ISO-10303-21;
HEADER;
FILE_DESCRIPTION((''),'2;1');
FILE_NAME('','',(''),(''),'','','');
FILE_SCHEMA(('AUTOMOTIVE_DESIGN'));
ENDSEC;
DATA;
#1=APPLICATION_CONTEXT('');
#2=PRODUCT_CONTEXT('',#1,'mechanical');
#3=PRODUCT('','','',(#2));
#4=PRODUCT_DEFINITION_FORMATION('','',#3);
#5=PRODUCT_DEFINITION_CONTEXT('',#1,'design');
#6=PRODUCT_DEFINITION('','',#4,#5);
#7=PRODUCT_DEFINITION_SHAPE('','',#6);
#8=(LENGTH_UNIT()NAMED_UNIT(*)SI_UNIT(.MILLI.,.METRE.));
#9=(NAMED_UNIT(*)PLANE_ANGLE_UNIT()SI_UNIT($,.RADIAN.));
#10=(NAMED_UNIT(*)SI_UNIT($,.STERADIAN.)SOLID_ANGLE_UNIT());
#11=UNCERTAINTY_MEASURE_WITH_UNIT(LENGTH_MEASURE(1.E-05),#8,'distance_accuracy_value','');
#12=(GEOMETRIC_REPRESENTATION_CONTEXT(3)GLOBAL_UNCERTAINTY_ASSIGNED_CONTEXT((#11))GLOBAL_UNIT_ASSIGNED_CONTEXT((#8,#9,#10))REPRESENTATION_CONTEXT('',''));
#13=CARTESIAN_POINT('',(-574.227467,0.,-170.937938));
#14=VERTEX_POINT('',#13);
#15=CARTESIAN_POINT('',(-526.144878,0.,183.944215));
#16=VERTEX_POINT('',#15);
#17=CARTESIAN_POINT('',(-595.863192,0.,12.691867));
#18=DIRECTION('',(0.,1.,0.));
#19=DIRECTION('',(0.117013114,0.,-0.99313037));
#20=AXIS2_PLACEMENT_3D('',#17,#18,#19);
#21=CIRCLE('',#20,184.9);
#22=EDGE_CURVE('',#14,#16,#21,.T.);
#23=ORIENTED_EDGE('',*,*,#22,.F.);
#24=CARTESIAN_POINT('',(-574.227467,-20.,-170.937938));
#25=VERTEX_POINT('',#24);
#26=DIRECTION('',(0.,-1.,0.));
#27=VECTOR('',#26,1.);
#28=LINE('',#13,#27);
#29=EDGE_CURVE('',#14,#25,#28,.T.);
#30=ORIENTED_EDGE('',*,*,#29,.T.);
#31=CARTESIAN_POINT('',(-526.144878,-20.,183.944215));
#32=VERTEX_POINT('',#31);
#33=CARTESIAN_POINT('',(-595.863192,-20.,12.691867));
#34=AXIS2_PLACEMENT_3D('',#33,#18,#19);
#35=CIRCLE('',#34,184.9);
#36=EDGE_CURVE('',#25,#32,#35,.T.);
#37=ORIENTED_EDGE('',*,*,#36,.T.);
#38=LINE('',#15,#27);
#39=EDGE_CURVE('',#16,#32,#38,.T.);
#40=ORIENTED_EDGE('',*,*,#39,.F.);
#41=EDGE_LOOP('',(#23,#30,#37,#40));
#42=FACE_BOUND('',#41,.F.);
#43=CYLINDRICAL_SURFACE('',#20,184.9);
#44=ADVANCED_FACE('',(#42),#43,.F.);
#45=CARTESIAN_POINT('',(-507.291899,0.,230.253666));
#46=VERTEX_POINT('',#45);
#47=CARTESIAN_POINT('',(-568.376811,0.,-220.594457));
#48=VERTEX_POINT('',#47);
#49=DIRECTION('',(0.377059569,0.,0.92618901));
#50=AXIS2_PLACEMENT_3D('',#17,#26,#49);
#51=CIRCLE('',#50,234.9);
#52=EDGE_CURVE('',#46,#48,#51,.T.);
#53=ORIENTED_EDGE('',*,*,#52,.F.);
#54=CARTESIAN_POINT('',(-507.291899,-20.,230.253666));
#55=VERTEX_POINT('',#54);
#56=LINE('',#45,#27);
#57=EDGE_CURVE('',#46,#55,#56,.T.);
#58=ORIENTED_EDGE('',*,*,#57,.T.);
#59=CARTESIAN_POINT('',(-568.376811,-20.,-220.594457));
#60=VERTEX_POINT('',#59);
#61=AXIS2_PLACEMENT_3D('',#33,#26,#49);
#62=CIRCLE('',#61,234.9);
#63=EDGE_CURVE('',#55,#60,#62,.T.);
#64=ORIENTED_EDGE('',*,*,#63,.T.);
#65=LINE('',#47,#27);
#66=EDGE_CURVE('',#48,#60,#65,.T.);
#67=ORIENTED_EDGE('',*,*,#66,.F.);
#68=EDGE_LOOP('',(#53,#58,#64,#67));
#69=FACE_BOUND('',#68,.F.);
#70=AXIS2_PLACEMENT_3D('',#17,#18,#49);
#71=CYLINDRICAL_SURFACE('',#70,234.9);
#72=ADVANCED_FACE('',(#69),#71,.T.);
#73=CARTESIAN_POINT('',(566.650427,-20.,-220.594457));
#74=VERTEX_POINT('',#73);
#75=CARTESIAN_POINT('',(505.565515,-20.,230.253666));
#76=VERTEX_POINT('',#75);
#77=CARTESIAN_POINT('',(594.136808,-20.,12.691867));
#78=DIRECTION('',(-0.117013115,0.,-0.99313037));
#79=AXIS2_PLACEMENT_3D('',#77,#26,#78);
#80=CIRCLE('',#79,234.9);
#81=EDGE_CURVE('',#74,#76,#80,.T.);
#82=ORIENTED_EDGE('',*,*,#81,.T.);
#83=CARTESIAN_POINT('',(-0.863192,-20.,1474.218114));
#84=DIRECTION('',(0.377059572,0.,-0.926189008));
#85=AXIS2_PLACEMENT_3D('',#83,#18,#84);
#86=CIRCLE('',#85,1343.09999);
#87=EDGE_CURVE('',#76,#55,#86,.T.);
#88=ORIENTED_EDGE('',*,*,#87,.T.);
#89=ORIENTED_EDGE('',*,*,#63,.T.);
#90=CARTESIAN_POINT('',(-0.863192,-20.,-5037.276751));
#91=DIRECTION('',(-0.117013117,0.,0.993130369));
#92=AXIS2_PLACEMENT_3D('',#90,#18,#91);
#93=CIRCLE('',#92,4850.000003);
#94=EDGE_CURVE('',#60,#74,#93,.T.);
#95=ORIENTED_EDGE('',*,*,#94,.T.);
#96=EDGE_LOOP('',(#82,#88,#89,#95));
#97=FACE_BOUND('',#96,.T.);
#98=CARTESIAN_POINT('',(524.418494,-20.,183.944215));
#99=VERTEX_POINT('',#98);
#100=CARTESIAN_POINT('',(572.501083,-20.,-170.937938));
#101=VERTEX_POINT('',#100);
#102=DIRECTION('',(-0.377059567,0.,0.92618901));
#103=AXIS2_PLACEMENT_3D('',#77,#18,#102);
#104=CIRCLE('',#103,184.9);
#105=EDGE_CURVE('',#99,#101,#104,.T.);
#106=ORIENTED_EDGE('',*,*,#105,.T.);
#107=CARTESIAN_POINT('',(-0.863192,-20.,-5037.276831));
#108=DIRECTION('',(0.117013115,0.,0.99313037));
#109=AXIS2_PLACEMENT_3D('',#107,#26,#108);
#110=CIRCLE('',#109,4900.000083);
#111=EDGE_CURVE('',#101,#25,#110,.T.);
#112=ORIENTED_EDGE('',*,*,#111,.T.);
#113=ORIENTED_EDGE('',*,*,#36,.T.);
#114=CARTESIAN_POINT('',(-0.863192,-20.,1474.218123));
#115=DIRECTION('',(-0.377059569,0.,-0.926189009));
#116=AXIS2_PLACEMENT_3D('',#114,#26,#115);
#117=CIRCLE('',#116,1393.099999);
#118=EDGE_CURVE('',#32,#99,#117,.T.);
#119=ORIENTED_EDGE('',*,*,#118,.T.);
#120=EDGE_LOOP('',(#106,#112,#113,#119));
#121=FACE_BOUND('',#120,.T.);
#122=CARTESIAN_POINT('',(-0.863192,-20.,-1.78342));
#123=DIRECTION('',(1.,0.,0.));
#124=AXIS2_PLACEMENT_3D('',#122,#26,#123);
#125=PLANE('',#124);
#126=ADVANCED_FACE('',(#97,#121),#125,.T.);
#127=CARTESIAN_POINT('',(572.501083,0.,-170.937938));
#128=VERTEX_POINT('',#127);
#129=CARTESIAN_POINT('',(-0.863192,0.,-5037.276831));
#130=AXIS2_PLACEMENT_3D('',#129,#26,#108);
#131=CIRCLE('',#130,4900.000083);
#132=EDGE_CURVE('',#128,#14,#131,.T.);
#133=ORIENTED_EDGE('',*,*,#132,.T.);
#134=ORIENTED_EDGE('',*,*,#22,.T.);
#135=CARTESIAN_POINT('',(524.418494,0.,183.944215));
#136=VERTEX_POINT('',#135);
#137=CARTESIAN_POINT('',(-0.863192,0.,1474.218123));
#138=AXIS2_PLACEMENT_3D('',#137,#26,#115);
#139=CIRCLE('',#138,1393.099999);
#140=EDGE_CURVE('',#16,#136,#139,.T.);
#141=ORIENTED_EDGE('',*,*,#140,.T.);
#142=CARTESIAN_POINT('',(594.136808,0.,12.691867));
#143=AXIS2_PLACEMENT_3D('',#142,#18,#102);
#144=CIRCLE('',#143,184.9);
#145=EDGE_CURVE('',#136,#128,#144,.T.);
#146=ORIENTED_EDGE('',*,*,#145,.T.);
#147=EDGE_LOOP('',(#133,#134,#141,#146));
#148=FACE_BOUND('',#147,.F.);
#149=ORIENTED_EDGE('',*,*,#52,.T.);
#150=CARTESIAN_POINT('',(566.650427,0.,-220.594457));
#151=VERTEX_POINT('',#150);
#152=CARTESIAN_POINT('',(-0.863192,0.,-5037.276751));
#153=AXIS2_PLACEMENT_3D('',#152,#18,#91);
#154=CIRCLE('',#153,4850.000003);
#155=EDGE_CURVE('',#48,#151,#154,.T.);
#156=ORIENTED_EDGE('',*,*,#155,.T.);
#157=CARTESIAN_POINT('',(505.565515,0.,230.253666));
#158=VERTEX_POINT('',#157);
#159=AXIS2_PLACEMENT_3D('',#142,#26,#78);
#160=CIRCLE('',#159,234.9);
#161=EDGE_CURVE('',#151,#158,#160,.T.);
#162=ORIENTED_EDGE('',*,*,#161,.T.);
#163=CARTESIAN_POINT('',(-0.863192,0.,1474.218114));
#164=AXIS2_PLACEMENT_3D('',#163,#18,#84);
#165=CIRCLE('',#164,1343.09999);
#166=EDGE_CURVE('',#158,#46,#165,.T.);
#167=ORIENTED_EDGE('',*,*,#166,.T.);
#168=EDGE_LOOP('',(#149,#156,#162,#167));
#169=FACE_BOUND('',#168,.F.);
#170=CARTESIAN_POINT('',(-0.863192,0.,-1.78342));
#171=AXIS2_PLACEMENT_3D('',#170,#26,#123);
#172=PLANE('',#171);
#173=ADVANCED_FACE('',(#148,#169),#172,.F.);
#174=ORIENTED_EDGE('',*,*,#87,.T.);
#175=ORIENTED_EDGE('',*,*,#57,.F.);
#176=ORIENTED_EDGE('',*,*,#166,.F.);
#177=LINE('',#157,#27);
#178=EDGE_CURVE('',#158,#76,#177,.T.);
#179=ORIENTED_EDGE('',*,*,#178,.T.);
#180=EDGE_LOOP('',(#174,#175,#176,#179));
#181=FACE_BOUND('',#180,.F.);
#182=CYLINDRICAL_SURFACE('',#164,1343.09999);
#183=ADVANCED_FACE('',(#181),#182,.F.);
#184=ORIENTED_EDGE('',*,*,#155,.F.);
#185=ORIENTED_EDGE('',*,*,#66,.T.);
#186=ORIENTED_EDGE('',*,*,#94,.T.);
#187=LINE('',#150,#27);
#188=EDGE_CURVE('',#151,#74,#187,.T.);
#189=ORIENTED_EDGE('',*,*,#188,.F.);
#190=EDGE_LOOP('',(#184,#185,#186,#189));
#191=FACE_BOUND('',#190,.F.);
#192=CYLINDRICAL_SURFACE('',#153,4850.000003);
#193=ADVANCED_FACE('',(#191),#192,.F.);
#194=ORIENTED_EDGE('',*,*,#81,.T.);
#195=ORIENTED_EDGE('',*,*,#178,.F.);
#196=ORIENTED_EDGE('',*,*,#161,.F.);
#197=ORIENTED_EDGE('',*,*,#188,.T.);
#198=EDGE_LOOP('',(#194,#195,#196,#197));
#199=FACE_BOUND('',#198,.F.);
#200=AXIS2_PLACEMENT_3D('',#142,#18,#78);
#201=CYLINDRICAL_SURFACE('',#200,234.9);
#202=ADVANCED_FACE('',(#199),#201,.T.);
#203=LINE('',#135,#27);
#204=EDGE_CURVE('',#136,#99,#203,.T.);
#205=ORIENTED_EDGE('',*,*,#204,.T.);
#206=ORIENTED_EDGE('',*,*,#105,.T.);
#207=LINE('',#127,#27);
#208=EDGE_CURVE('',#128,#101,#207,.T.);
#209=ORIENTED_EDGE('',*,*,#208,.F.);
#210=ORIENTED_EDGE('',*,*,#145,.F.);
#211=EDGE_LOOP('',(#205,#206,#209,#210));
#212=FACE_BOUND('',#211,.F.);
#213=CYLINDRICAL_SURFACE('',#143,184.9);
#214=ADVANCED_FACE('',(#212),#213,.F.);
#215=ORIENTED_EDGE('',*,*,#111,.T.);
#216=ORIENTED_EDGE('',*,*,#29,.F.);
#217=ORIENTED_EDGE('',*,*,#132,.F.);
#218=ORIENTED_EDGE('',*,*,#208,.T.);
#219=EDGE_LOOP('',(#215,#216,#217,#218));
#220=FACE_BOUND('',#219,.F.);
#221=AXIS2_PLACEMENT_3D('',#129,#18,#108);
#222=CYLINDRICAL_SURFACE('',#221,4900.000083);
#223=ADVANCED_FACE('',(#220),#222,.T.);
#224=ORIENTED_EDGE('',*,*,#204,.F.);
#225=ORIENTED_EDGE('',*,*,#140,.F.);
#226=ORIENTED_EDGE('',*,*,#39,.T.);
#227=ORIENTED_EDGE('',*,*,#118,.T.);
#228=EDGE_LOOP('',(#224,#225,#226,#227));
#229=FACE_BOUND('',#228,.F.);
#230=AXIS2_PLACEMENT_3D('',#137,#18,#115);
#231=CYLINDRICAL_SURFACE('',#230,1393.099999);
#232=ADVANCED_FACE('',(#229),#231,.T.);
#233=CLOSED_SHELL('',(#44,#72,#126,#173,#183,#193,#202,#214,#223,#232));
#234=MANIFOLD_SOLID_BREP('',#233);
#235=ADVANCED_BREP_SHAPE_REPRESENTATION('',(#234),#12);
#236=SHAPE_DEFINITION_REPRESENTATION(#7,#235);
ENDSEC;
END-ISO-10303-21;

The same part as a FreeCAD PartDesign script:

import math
import FreeCAD as App
import Part
import Sketcher

doc = App.newDocument("Part")
body = doc.addObject("PartDesign::Body", "Body")

sketch1 = body.newObject("Sketcher::SketchObject", "Sketch")
sketch1.AttachmentSupport = (doc.getObject("XZ_Plane"), [""])
sketch1.MapMode = "FlatFace"
sketch1.addGeometry([
    Part.ArcOfCircle(Part.Circle(App.Vector(-1, 1474, 0), App.Vector(0, 0, 1), 1343), math.radians(-112), math.radians(-68)),
    Part.ArcOfCircle(Part.Circle(App.Vector(-596, 13, 0), App.Vector(0, 0, 1), 235), math.radians(68), math.radians(277)),
    Part.ArcOfCircle(Part.Circle(App.Vector(-1, -5037, 0), App.Vector(0, 0, 1), 4850), math.radians(83.28), math.radians(96.72)),
    Part.ArcOfCircle(Part.Circle(App.Vector(594, 13, 0), App.Vector(0, 0, 1), 235), math.radians(-97), math.radians(112)),
    Part.ArcOfCircle(Part.Circle(App.Vector(-1, -5037, 0), App.Vector(0, 0, 1), 4900), math.radians(83.28), math.radians(96.72)),
    Part.ArcOfCircle(Part.Circle(App.Vector(-596, 13, 0), App.Vector(0, 0, 1), 185), math.radians(68), math.radians(277)),
    Part.ArcOfCircle(Part.Circle(App.Vector(-1, 1474, 0), App.Vector(0, 0, 1), 1393), math.radians(-112), math.radians(-68)),
    Part.ArcOfCircle(Part.Circle(App.Vector(594, 13, 0), App.Vector(0, 0, 1), 185), math.radians(-97), math.radians(112)),
], False)
sketch1.addConstraint([
    Sketcher.Constraint("Tangent", 0, 1, 1, 1),
    Sketcher.Constraint("Tangent", 1, 2, 2, 2),
    Sketcher.Constraint("Tangent", 2, 1, 3, 1),
    Sketcher.Constraint("Tangent", 3, 2, 0, 2),
    Sketcher.Constraint("Tangent", 4, 2, 5, 2),
    Sketcher.Constraint("Tangent", 5, 1, 6, 1),
    Sketcher.Constraint("Tangent", 6, 2, 7, 2),
    Sketcher.Constraint("Tangent", 7, 1, 4, 1),
    Sketcher.Constraint("Coincident", 5, 3, 1, 3),
    Sketcher.Constraint("Coincident", 6, 3, 0, 3),
    Sketcher.Constraint("Coincident", 7, 3, 3, 3),
    Sketcher.Constraint("Equal", 1, 3),
    Sketcher.Constraint("Horizontal", 1, 3, 3, 3),
    Sketcher.Constraint("Radius", 1, 234.9),
    Sketcher.Constraint("Radius", 5, 184.9),
    Sketcher.Constraint("Radius", 6, 1393.099999),
    Sketcher.Constraint("DistanceX", 1, 3, 0, 3, 595.0),
    Sketcher.Constraint("Radius", 2, 4850.000003),
    Sketcher.Constraint("Radius", 4, 4900.000083),
    Sketcher.Constraint("DistanceX", 0, 3, -1, 1, 0.863192),
    Sketcher.Constraint("DistanceY", 2, 3, -1, 1, 5037.276751),
])
pad1 = body.newObject("PartDesign::Pad", "Pad")
pad1.Profile = sketch1
pad1.Length = 20

doc.recompute()
